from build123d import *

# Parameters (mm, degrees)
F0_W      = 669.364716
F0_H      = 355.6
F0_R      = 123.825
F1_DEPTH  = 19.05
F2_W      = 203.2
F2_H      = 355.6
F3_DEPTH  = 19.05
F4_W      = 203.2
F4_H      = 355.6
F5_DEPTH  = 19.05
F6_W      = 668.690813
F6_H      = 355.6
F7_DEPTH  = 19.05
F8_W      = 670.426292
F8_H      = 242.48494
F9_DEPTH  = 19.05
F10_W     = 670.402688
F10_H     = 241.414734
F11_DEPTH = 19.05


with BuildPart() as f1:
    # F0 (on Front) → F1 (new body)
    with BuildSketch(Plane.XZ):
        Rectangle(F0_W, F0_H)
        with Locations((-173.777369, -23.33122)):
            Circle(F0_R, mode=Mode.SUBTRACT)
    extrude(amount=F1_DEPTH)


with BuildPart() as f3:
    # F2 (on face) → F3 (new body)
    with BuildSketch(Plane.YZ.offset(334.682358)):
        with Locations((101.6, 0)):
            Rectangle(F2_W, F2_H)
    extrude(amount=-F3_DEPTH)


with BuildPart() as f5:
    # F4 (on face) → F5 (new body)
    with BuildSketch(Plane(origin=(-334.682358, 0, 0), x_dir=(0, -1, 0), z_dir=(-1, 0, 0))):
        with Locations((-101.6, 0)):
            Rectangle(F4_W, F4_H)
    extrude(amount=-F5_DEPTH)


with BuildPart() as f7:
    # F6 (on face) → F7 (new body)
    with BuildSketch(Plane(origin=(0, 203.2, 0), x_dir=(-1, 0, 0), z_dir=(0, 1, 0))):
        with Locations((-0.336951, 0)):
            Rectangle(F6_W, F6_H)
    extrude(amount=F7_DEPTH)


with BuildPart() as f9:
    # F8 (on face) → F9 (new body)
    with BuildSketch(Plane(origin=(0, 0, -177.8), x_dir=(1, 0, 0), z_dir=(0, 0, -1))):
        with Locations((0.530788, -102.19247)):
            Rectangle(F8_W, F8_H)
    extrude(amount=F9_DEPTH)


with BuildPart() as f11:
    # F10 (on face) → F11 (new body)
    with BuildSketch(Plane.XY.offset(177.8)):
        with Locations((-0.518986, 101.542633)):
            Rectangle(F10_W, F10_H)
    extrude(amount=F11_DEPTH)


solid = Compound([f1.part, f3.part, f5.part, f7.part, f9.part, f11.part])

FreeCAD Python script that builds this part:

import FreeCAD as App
import Part
import Sketcher
Q = App.Units.Quantity

doc = App.newDocument("Part")
body = doc.addObject("PartDesign::Body", "Body")

# Sketch on XZ plane
sketch1 = body.newObject("Sketcher::SketchObject", "Sketch")
sketch1.AttachmentSupport = (doc.getObject("XZ_Plane"), [""])
sketch1.MapMode = "FlatFace"
sketch1.addGeometry(Part.LineSegment(App.Vector(-335, 178, 0), App.Vector(-335, -178, 0)), False)
sketch1.addGeometry(Part.LineSegment(App.Vector(-335, -178, 0), App.Vector(335, -178, 0)), False)
sketch1.addGeometry(Part.LineSegment(App.Vector(335, -178, 0), App.Vector(335, 178, 0)), False)
sketch1.addGeometry(Part.LineSegment(App.Vector(335, 178, 0), App.Vector(-335, 178, 0)), False)
sketch1.addGeometry(Part.Circle(App.Vector(-174, -23, 0), App.Vector(0, 0, 1), 124), False)
sketch1.addConstraint(Sketcher.Constraint("Coincident", 0, 2, 1, 1))
sketch1.addConstraint(Sketcher.Constraint("Coincident", 1, 2, 2, 1))
sketch1.addConstraint(Sketcher.Constraint("Coincident", 2, 2, 3, 1))
sketch1.addConstraint(Sketcher.Constraint("Coincident", 3, 2, 0, 1))
sketch1.addConstraint(Sketcher.Constraint("Vertical", 0))
sketch1.addConstraint(Sketcher.Constraint("Horizontal", 1))
sketch1.addConstraint(Sketcher.Constraint("Vertical", 2))
sketch1.addConstraint(Sketcher.Constraint("Horizontal", 3))
sketch1.addConstraint(Sketcher.Constraint("Symmetric", 0, 2, 2, 2, -1, 1))
sketch1.addConstraint(Sketcher.Constraint("Diameter", 4, Q("9.75 in")))
sketch1.addConstraint(Sketcher.Constraint("DistanceY", 0, 2, 0, 1, Q("14 in")))
sketch1.addConstraint(Sketcher.Constraint("DistanceX", 1, 1, 1, 2, Q("669.364716 mm")))
sketch1.addConstraint(Sketcher.Constraint("DistanceX", 4, 3, -1, 1, Q("173.777369 mm")))
sketch1.addConstraint(Sketcher.Constraint("DistanceY", 4, 3, -1, 1, Q("23.33122 mm")))
pad1 = body.newObject("PartDesign::Pad", "Pad")
pad1.Profile = sketch1
pad1.Length = Q("0.75 in")
body2 = doc.addObject("PartDesign::Body", "Body001")

# Sketch on YZ plane
sketch2 = body2.newObject("Sketcher::SketchObject", "Sketch001")
sketch2.AttachmentSupport = (doc.getObject("YZ_Plane001"), [""])
sketch2.MapMode = "FlatFace"
sketch2.AttachmentOffset = App.Placement(App.Vector(0, 0, 334.682358), App.Rotation())
sketch2.addGeometry(Part.LineSegment(App.Vector(0, 178, 0), App.Vector(0, -178, 0)), False)
sketch2.addGeometry(Part.LineSegment(App.Vector(0, -178, 0), App.Vector(203, -178, 0)), False)
sketch2.addGeometry(Part.LineSegment(App.Vector(203, -178, 0), App.Vector(203, 178, 0)), False)
sketch2.addGeometry(Part.LineSegment(App.Vector(203, 178, 0), App.Vector(0, 178, 0)), False)
sketch2.addConstraint(Sketcher.Constraint("Coincident", 0, 2, 1, 1))
sketch2.addConstraint(Sketcher.Constraint("Coincident", 1, 2, 2, 1))
sketch2.addConstraint(Sketcher.Constraint("Coincident", 2, 2, 3, 1))
sketch2.addConstraint(Sketcher.Constraint("Coincident", 3, 2, 0, 1))
sketch2.addConstraint(Sketcher.Constraint("Vertical", 0))
sketch2.addConstraint(Sketcher.Constraint("Horizontal", 1))
sketch2.addConstraint(Sketcher.Constraint("Vertical", 2))
sketch2.addConstraint(Sketcher.Constraint("Horizontal", 3))
sketch2.addConstraint(Sketcher.Constraint("Symmetric", 0, 2, 3, 2, -1, 1))
sketch2.addConstraint(Sketcher.Constraint("DistanceX", 1, 1, 1, 2, Q("8 in")))
sketch2.addConstraint(Sketcher.Constraint("DistanceY", 0, 2, 0, 1, Q("14 in")))
pad2 = body2.newObject("PartDesign::Pad", "Pad001")
pad2.Profile = sketch2
pad2.Length = Q("0.75 in")
pad2.Reversed = True
body3 = doc.addObject("PartDesign::Body", "Body002")

# Sketch on YZ plane
sketch3 = body3.newObject("Sketcher::SketchObject", "Sketch002")
sketch3.AttachmentSupport = (doc.getObject("YZ_Plane002"), [""])
sketch3.MapMode = "FlatFace"
sketch3.AttachmentOffset = App.Placement(App.Vector(0, 0, -334.682358), App.Rotation())
sketch3.addGeometry(Part.LineSegment(App.Vector(203, 178, 0), App.Vector(203, -178, 0)), False)
sketch3.addGeometry(Part.LineSegment(App.Vector(203, -178, 0), App.Vector(0, -178, 0)), False)
sketch3.addGeometry(Part.LineSegment(App.Vector(0, -178, 0), App.Vector(0, 178, 0)), False)
sketch3.addGeometry(Part.LineSegment(App.Vector(0, 178, 0), App.Vector(203, 178, 0)), False)
sketch3.addConstraint(Sketcher.Constraint("Coincident", 0, 2, 1, 1))
sketch3.addConstraint(Sketcher.Constraint("Coincident", 1, 2, 2, 1))
sketch3.addConstraint(Sketcher.Constraint("Coincident", 2, 2, 3, 1))
sketch3.addConstraint(Sketcher.Constraint("Coincident", 3, 2, 0, 1))
sketch3.addConstraint(Sketcher.Constraint("Vertical", 0))
sketch3.addConstraint(Sketcher.Constraint("Horizontal", 1))
sketch3.addConstraint(Sketcher.Constraint("Vertical", 2))
sketch3.addConstraint(Sketcher.Constraint("Horizontal", 3))
sketch3.addConstraint(Sketcher.Constraint("Symmetric", 1, 2, 2, 2, -1, 1))
sketch3.addConstraint(Sketcher.Constraint("DistanceX", 1, 2, 1, 1, Q("8 in")))
sketch3.addConstraint(Sketcher.Constraint("DistanceY", 0, 2, 0, 1, Q("14 in")))
pad3 = body3.newObject("PartDesign::Pad", "Pad002")
pad3.Profile = sketch3
pad3.Length = Q("0.75 in")
body4 = doc.addObject("PartDesign::Body", "Body003")

# Sketch on XZ plane
sketch4 = body4.newObject("Sketcher::SketchObject", "Sketch003")
sketch4.AttachmentSupport = (doc.getObject("XZ_Plane003"), [""])
sketch4.MapMode = "FlatFace"
sketch4.AttachmentOffset = App.Placement(App.Vector(0, 0, -8 * 25.4), App.Rotation())
sketch4.addGeometry(Part.LineSegment(App.Vector(335, 178, 0), App.Vector(335, -178, 0)), False)
sketch4.addGeometry(Part.LineSegment(App.Vector(335, -178, 0), App.Vector(-334, -178, 0)), False)
sketch4.addGeometry(Part.LineSegment(App.Vector(-334, -178, 0), App.Vector(-334, 178, 0)), False)
sketch4.addGeometry(Part.LineSegment(App.Vector(-334, 178, 0), App.Vector(335, 178, 0)), False)
sketch4.addConstraint(Sketcher.Constraint("Coincident", 0, 2, 1, 1))
sketch4.addConstraint(Sketcher.Constraint("Coincident", 1, 2, 2, 1))
sketch4.addConstraint(Sketcher.Constraint("Coincident", 2, 2, 3, 1))
sketch4.addConstraint(Sketcher.Constraint("Coincident", 3, 2, 0, 1))
sketch4.addConstraint(Sketcher.Constraint("Vertical", 0))
sketch4.addConstraint(Sketcher.Constraint("Horizontal", 1))
sketch4.addConstraint(Sketcher.Constraint("Vertical", 2))
sketch4.addConstraint(Sketcher.Constraint("Horizontal", 3))
sketch4.addConstraint(Sketcher.Constraint("DistanceY", 0, 2, 0, 1, Q("14 in")))
sketch4.addConstraint(Sketcher.Constraint("DistanceY", 0, 2, -1, 1, Q("7 in")))
sketch4.addConstraint(Sketcher.Constraint("DistanceX", 1, 2, 1, 1, Q("668.690813 mm")))
sketch4.addConstraint(Sketcher.Constraint("DistanceX", -1, 1, 0, 2, Q("334.682358 mm")))
pad4 = body4.newObject("PartDesign::Pad", "Pad003")
pad4.Profile = sketch4
pad4.Length = Q("0.75 in")
pad4.Reversed = True
body5 = doc.addObject("PartDesign::Body", "Body004")

# Sketch on XY plane
sketch5 = body5.newObject("Sketcher::SketchObject", "Sketch004")
sketch5.AttachmentSupport = (doc.getObject("XY_Plane004"), [""])
sketch5.MapMode = "FlatFace"
sketch5.AttachmentOffset = App.Placement(App.Vector(0, 0, -7 * 25.4), App.Rotation())
sketch5.addGeometry(Part.LineSegment(App.Vector(-335, -19, 0), App.Vector(-335, 223, 0)), False)
sketch5.addGeometry(Part.LineSegment(App.Vector(-335, 223, 0), App.Vector(336, 223, 0)), False)
sketch5.addGeometry(Part.LineSegment(App.Vector(336, 223, 0), App.Vector(336, -19, 0)), False)
sketch5.addGeometry(Part.LineSegment(App.Vector(336, -19, 0), App.Vector(-335, -19, 0)), False)
sketch5.addConstraint(Sketcher.Constraint("Coincident", 0, 2, 1, 1))
sketch5.addConstraint(Sketcher.Constraint("Coincident", 1, 2, 2, 1))
sketch5.addConstraint(Sketcher.Constraint("Coincident", 2, 2, 3, 1))
sketch5.addConstraint(Sketcher.Constraint("Coincident", 3, 2, 0, 1))
sketch5.addConstraint(Sketcher.Constraint("Vertical", 0))
sketch5.addConstraint(Sketcher.Constraint("Horizontal", 1))
sketch5.addConstraint(Sketcher.Constraint("Vertical", 2))
sketch5.addConstraint(Sketcher.Constraint("Horizontal", 3))
sketch5.addConstraint(Sketcher.Constraint("DistanceY", 2, 2, -1, 1, Q("0.75 in")))
sketch5.addConstraint(Sketcher.Constraint("DistanceY", 0, 1, 0, 2, Q("242.48494 mm")))
sketch5.addConstraint(Sketcher.Constraint("DistanceX", 1, 1, 1, 2, Q("670.426292 mm")))
sketch5.addConstraint(Sketcher.Constraint("DistanceX", 0, 2, -1, 1, Q("334.682358 mm")))
pad5 = body5.newObject("PartDesign::Pad", "Pad004")
pad5.Profile = sketch5
pad5.Length = Q("0.75 in")
pad5.Reversed = True
body6 = doc.addObject("PartDesign::Body", "Body005")

# Sketch on XY plane
sketch6 = body6.newObject("Sketcher::SketchObject", "Sketch005")
sketch6.AttachmentSupport = (doc.getObject("XY_Plane005"), [""])
sketch6.MapMode = "FlatFace"
sketch6.AttachmentOffset = App.Placement(App.Vector(0, 0, 7 * 25.4), App.Rotation())
sketch6.addGeometry(Part.LineSegment(App.Vector(-336, 222, 0), App.Vector(-336, -19, 0)), False)
sketch6.addGeometry(Part.LineSegment(App.Vector(-336, -19, 0), App.Vector(335, -19, 0)), False)
sketch6.addGeometry(Part.LineSegment(App.Vector(335, -19, 0), App.Vector(335, 222, 0)), False)
sketch6.addGeometry(Part.LineSegment(App.Vector(335, 222, 0), App.Vector(-336, 222, 0)), False)
sketch6.addConstraint(Sketcher.Constraint("Coincident", 0, 2, 1, 1))
sketch6.addConstraint(Sketcher.Constraint("Coincident", 1, 2, 2, 1))
sketch6.addConstraint(Sketcher.Constraint("Coincident", 2, 2, 3, 1))
sketch6.addConstraint(Sketcher.Constraint("Coincident", 3, 2, 0, 1))
sketch6.addConstraint(Sketcher.Constraint("Vertical", 0))
sketch6.addConstraint(Sketcher.Constraint("Horizontal", 1))
sketch6.addConstraint(Sketcher.Constraint("Vertical", 2))
sketch6.addConstraint(Sketcher.Constraint("Horizontal", 3))
sketch6.addConstraint(Sketcher.Constraint("DistanceY", -1, 1, 2, 2, Q("8.75 in")))
sketch6.addConstraint(Sketcher.Constraint("DistanceX", 1, 1, 1, 2, Q("670.402688 mm")))
sketch6.addConstraint(Sketcher.Constraint("DistanceY", 0, 2, 0, 1, Q("241.414734 mm")))
sketch6.addConstraint(Sketcher.Constraint("DistanceX", 0, 2, -1, 1, Q("335.72033 mm")))
pad6 = body6.newObject("PartDesign::Pad", "Pad005")
pad6.Profile = sketch6
pad6.Length = Q("0.75 in")

doc.recompute()
